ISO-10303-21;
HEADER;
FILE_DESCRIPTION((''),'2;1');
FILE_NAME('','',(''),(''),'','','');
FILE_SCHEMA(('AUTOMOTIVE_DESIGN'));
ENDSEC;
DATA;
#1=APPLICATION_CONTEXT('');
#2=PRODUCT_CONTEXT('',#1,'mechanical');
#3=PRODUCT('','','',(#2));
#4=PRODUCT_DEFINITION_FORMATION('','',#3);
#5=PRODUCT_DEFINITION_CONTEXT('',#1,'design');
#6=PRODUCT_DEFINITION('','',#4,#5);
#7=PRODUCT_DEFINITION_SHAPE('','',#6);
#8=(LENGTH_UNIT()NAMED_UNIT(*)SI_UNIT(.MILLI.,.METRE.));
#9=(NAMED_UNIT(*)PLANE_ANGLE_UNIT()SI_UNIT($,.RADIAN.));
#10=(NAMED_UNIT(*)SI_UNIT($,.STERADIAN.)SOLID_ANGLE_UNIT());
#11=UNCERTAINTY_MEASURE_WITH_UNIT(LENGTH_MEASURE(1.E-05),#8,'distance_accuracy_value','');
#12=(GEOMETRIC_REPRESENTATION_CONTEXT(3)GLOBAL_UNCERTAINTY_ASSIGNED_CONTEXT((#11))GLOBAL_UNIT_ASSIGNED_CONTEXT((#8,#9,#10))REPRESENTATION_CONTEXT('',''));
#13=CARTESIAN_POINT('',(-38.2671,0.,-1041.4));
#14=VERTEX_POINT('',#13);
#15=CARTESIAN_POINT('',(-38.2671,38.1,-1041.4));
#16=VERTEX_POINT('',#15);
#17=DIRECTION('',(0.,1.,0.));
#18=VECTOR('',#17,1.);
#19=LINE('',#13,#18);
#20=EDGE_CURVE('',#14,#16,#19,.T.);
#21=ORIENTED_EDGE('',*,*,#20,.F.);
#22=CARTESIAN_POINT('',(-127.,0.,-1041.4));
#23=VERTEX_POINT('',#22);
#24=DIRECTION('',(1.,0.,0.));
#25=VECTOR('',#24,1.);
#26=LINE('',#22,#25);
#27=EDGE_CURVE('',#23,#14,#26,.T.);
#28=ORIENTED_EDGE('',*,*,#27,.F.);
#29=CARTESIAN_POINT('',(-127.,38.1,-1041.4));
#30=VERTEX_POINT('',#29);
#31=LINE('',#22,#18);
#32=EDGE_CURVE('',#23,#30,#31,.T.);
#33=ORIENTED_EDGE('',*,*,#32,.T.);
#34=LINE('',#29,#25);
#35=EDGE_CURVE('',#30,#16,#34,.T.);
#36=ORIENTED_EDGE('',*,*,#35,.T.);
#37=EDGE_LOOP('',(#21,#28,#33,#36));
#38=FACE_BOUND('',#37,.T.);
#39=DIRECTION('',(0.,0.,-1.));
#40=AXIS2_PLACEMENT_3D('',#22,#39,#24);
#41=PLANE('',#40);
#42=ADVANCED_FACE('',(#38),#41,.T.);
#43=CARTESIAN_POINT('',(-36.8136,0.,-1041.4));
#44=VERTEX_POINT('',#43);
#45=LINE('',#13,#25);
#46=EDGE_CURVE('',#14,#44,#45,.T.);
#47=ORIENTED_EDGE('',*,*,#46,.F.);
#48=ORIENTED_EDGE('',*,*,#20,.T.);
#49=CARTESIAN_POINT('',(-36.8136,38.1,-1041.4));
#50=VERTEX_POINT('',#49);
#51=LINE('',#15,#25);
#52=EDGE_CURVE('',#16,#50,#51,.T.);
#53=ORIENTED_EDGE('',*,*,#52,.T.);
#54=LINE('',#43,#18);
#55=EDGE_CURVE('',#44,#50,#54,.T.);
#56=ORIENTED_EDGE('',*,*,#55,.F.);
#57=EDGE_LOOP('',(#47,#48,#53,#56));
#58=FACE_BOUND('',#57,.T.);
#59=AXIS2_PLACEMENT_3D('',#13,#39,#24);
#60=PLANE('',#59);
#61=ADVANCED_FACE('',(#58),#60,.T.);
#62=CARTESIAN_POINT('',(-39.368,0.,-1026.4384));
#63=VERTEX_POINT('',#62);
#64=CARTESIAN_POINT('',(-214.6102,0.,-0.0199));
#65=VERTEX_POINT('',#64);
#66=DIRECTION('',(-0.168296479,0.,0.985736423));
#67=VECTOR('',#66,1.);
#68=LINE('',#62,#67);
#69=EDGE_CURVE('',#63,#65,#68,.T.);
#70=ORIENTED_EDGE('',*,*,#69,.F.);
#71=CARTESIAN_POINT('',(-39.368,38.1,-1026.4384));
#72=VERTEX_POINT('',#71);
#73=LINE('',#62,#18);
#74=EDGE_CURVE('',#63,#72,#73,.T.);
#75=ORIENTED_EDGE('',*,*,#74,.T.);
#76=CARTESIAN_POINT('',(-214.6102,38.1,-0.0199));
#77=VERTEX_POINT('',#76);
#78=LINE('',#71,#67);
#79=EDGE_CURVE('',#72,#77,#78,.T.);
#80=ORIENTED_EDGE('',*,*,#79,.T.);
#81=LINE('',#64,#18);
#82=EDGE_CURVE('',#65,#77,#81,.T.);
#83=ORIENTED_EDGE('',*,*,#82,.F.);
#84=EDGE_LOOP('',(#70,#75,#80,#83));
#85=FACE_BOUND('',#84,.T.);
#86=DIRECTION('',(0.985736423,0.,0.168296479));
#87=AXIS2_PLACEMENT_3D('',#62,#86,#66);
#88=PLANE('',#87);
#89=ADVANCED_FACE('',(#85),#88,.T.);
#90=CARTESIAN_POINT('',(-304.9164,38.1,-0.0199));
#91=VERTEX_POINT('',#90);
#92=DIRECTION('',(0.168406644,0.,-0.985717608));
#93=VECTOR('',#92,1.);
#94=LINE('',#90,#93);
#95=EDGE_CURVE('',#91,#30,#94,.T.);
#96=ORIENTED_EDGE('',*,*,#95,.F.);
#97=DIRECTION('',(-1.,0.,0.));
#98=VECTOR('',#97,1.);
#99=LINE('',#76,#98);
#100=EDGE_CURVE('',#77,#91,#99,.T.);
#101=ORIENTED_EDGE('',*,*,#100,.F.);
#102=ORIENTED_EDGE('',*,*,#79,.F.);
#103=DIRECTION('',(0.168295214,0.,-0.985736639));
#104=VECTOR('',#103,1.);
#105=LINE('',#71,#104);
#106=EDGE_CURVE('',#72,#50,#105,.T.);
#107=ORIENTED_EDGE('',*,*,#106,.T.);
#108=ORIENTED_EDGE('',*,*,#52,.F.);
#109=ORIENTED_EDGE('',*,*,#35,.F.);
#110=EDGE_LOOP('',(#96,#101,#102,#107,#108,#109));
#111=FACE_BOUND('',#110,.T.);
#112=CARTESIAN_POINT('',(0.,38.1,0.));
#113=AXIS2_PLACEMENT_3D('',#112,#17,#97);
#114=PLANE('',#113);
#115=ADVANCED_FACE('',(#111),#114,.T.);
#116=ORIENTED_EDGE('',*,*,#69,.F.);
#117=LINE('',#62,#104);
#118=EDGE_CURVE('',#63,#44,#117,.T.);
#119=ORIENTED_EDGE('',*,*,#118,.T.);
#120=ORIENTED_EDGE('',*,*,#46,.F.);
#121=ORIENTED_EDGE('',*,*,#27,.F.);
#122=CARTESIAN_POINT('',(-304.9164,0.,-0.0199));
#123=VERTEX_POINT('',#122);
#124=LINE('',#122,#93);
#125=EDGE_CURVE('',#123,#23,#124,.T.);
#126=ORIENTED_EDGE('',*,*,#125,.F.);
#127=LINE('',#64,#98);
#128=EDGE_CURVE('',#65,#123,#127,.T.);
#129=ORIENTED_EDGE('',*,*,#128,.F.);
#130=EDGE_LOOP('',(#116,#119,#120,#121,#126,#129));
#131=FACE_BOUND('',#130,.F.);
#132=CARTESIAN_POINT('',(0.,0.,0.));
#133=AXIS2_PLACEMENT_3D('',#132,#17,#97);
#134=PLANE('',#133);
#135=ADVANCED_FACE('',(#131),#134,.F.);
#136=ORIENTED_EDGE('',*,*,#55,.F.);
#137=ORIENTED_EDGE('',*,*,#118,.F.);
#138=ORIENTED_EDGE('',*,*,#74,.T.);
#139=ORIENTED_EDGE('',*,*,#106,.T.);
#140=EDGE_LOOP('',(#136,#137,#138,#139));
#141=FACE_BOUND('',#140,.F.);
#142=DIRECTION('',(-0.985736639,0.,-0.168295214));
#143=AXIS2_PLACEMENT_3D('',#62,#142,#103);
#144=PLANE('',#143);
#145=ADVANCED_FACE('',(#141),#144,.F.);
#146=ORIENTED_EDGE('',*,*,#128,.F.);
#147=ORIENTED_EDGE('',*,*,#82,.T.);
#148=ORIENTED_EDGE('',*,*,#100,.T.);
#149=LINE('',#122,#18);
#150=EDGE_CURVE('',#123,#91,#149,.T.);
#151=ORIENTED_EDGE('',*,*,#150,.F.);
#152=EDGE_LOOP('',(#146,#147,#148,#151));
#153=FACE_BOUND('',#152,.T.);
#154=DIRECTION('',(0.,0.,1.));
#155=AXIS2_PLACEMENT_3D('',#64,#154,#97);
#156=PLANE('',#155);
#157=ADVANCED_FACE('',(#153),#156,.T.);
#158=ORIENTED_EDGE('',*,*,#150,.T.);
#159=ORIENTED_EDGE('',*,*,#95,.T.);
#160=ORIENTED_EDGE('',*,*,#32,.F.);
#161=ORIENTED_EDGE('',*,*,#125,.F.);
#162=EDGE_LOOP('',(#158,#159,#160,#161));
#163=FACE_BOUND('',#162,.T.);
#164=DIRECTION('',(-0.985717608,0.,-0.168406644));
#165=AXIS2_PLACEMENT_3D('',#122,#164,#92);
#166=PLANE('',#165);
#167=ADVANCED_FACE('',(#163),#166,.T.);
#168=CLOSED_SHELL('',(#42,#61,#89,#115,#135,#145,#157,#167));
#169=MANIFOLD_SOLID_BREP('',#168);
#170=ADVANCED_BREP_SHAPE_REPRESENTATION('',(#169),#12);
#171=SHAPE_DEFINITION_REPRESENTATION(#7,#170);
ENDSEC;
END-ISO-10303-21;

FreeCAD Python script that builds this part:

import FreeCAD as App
import Part
import Sketcher
from FreeCAD import Vector
Q = App.Units.Quantity

doc = App.newDocument("Part")
body = doc.addObject("PartDesign::Body", "Body")

# Sketch on XZ plane
sketch1 = body.newObject("Sketcher::SketchObject", "Sketch")
sketch1.AttachmentSupport = (doc.getObject("XZ_Plane"), [""])
sketch1.MapMode = "FlatFace"
sketch1.addGeometry(Part.LineSegment(Vector(-304.9164, -0.0199, 0), Vector(-214.6102, -0.0199, 0)), False)
sketch1.addGeometry(Part.LineSegment(Vector(-214.6102, -0.0199, 0), Vector(-39.368, -1026.4384, 0)), False)
sketch1.addGeometry(Part.LineSegment(Vector(-39.368, -1026.4384, 0), Vector(-36.8136, -1041.4, 0)), False)
sketch1.addGeometry(Part.LineSegment(Vector(-36.8136, -1041.4, 0), Vector(-127, -1041.4, 0)), False)
sketch1.addGeometry(Part.LineSegment(Vector(-127, -1041.4, 0), Vector(-304.9164, -0.0199, 0)), False)
sketch1.addConstraint(Sketcher.Constraint("Coincident", 0, 2, 1, 1))
sketch1.addConstraint(Sketcher.Constraint("Coincident", 1, 2, 2, 1))
sketch1.addConstraint(Sketcher.Constraint("Coincident", 2, 2, 3, 1))
sketch1.addConstraint(Sketcher.Constraint("Coincident", 3, 2, 4, 1))
sketch1.addConstraint(Sketcher.Constraint("Coincident", 4, 2, 0, 1))
sketch1.addConstraint(Sketcher.Constraint("Horizontal", 0))
sketch1.addConstraint(Sketcher.Constraint("Horizontal", 3))
sketch1.addConstraint(Sketcher.Constraint("DistanceY", 2, 2, -1, 1, Q("41 in")))
sketch1.addConstraint(Sketcher.Constraint("DistanceX", 3, 2, -1, 1, Q("5 in")))
sketch1.addConstraint(Sketcher.Constraint("Distance", 1, Q("40.9949 in")))
sketch1.addConstraint(Sketcher.Constraint("DistanceX", 0, 1, 0, 2, Q("90.3062 mm")))
sketch1.addConstraint(Sketcher.Constraint("DistanceX", 3, 2, 3, 1, Q("90.1864 mm")))
sketch1.addConstraint(Sketcher.Constraint("DistanceX", 0, 2, 1, 2, Q("6.8993 in")))
sketch1.addConstraint(Sketcher.Constraint("Distance", 2, Q("15.178 mm")))
sketch1.addConstraint(Sketcher.Constraint("DistanceX", 0, 2, -1, 1, Q("214.6102 mm")))
pad1 = body.newObject("PartDesign::Pad", "Pad")
pad1.Profile = sketch1
pad1.Length = Q("1.5 in")
pad1.Reversed = True

doc.recompute()
